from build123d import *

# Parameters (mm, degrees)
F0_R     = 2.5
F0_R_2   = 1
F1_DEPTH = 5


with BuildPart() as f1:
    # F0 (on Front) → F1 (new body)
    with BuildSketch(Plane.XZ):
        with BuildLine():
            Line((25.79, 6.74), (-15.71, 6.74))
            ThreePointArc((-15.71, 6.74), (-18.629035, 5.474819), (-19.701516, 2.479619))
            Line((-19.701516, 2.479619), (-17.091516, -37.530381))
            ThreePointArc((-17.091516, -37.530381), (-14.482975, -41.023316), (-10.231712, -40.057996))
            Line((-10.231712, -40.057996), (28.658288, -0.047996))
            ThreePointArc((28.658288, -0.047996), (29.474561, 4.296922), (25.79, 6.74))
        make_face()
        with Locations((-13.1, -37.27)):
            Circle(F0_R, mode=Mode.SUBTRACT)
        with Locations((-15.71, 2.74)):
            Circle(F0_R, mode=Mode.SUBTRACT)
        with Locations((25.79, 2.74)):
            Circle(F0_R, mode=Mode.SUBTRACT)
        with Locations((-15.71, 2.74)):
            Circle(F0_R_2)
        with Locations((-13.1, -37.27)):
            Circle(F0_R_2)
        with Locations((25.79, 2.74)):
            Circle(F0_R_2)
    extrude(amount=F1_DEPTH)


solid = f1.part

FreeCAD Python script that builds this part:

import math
import FreeCAD as App
import Part
import Sketcher

doc = App.newDocument("Part")
body = doc.addObject("PartDesign::Body", "Body")
body.AllowCompound = True

# Sketch on XZ plane
sketch1 = body.newObject("Sketcher::SketchObject", "Sketch")
sketch1.AttachmentSupport = (doc.getObject("XZ_Plane"), [""])
sketch1.MapMode = "FlatFace"
sketch1.addGeometry(Part.LineSegment(App.Vector(25.79, 6.74, 0), App.Vector(-15.71, 6.74, 0)), False)
sketch1.addGeometry(Part.ArcOfCircle(Part.Circle(App.Vector(-15.71, 2.74, 0), App.Vector(0, 0, 1), 4), math.radians(89.999997), math.radians(183.732329)), False)
sketch1.addGeometry(Part.LineSegment(App.Vector(-19.701516, 2.479619, 0), App.Vector(-17.091516, -37.530381, 0)), False)
sketch1.addGeometry(Part.ArcOfCircle(Part.Circle(App.Vector(-13.1, -37.270001, 0), App.Vector(0, 0, 1), 4), math.radians(-176.267685), math.radians(-44.186722)), False)
sketch1.addGeometry(Part.LineSegment(App.Vector(-10.231712, -40.057996, 0), App.Vector(28.658288, -0.047996, 0)), False)
sketch1.addGeometry(Part.ArcOfCircle(Part.Circle(App.Vector(25.789999, 2.74, 0), App.Vector(0, 0, 1), 4), math.radians(-44.186723), math.radians(89.999991)), False)
sketch1.addGeometry(Part.Circle(App.Vector(-13.1, -37.27, 0), App.Vector(0, 0, 1), 2.5), False)
sketch1.addGeometry(Part.Circle(App.Vector(-15.71, 2.74, 0), App.Vector(0, 0, 1), 2.5), False)
sketch1.addGeometry(Part.Circle(App.Vector(25.79, 2.74, 0), App.Vector(0, 0, 1), 2.5), False)
sketch1.addGeometry(Part.Circle(App.Vector(-15.71, 2.74, 0), App.Vector(0, 0, 1), 1), False)
sketch1.addGeometry(Part.Circle(App.Vector(-13.1, -37.27, 0), App.Vector(0, 0, 1), 1), False)
sketch1.addGeometry(Part.Circle(App.Vector(25.79, 2.74, 0), App.Vector(0, 0, 1), 1), False)
sketch1.addConstraint(Sketcher.Constraint("Tangent", 0, 2, 1, 1))
sketch1.addConstraint(Sketcher.Constraint("Tangent", 1, 2, 2, 1))
sketch1.addConstraint(Sketcher.Constraint("Tangent", 2, 2, 3, 1))
sketch1.addConstraint(Sketcher.Constraint("Tangent", 3, 2, 4, 1))
sketch1.addConstraint(Sketcher.Constraint("Tangent", 4, 2, 5, 1))
sketch1.addConstraint(Sketcher.Constraint("Tangent", 5, 2, 0, 1))
sketch1.addConstraint(Sketcher.Constraint("Horizontal", 0))
sketch1.addConstraint(Sketcher.Constraint("Coincident", 6, 3, 3, 3))
sketch1.addConstraint(Sketcher.Constraint("Coincident", 7, 3, 1, 3))
sketch1.addConstraint(Sketcher.Constraint("Coincident", 8, 3, 5, 3))
sketch1.addConstraint(Sketcher.Constraint("Coincident", 9, 3, 1, 3))
sketch1.addConstraint(Sketcher.Constraint("Coincident", 10, 3, 3, 3))
sketch1.addConstraint(Sketcher.Constraint("Coincident", 11, 3, 5, 3))
sketch1.addConstraint(Sketcher.Constraint("Equal", 1, 3))
sketch1.addConstraint(Sketcher.Constraint("Equal", 3, 5))
sketch1.addConstraint(Sketcher.Constraint("Equal", 6, 7))
sketch1.addConstraint(Sketcher.Constraint("Equal", 7, 8))
sketch1.addConstraint(Sketcher.Constraint("Equal", 9, 10))
sketch1.addConstraint(Sketcher.Constraint("Equal", 10, 11))
sketch1.addConstraint(Sketcher.Constraint("Diameter", 6, 5.0))
sketch1.addConstraint(Sketcher.Constraint("Diameter", 9, 2.0))
sketch1.addConstraint(Sketcher.Constraint("Radius", 1, 4.0))
sketch1.addConstraint(Sketcher.Constraint("DistanceX", 0, 2, 0, 1, 41.5))
sketch1.addConstraint(Sketcher.Constraint("DistanceX", 3, 3, -1, 1, 13.1))
sketch1.addConstraint(Sketcher.Constraint("DistanceX", 1, 3, -1, 1, 15.71))
sketch1.addConstraint(Sketcher.Constraint("DistanceY", -1, 1, 1, 3, 2.74))
sketch1.addConstraint(Sketcher.Constraint("DistanceY", 3, 3, -1, 1, 37.270001))
pad1 = body.newObject("PartDesign::Pad", "Pad")
pad1.Profile = sketch1
pad1.Length = 5

doc.recompute()
